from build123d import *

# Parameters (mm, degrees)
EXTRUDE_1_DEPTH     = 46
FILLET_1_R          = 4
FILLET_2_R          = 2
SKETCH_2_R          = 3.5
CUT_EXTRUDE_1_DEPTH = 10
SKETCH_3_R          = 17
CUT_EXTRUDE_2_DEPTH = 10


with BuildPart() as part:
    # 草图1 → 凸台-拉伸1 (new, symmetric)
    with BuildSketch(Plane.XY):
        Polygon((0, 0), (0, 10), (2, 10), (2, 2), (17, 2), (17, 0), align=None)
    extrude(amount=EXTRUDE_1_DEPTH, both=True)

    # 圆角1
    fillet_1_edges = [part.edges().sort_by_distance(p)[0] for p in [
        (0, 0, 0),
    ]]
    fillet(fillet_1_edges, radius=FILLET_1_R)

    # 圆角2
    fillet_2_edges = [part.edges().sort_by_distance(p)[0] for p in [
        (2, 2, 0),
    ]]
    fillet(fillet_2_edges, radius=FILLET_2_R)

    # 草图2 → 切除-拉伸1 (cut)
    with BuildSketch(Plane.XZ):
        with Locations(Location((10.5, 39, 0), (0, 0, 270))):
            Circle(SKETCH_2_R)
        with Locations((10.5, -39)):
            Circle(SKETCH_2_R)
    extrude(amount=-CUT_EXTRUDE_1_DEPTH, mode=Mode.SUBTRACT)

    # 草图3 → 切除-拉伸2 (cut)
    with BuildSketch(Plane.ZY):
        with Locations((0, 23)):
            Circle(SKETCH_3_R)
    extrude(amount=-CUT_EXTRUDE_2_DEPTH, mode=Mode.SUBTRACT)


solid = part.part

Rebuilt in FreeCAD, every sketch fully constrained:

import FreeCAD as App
import Part
import Sketcher


def edges_at(feature, points):
    """Names of the edges that pass closest to the given points."""
    edges = feature.Shape.Edges
    near = lambda p: min(range(len(edges)), key=lambda i: edges[i].distToShape(Part.Vertex(*p))[0])
    return sorted({f"Edge{near(p) + 1}" for p in points})

doc = App.newDocument("Part")
body = doc.addObject("PartDesign::Body", "Body")

# Sketch on XY plane
sketch1 = body.newObject("Sketcher::SketchObject", "Sketch")
sketch1.AttachmentSupport = (doc.getObject("XY_Plane"), [""])
sketch1.MapMode = "FlatFace"
sketch1.addGeometry(Part.LineSegment(App.Vector(0, 10, 0), App.Vector(0, 0, 0)), False)
sketch1.addGeometry(Part.LineSegment(App.Vector(0, 0, 0), App.Vector(17, 0, 0)), False)
sketch1.addGeometry(Part.LineSegment(App.Vector(17, 0, 0), App.Vector(17, 2, 0)), False)
sketch1.addGeometry(Part.LineSegment(App.Vector(17, 2, 0), App.Vector(2, 2, 0)), False)
sketch1.addGeometry(Part.LineSegment(App.Vector(2, 2, 0), App.Vector(2, 10, 0)), False)
sketch1.addGeometry(Part.LineSegment(App.Vector(2, 10, 0), App.Vector(0, 10, 0)), False)
sketch1.addConstraint(Sketcher.Constraint("Coincident", 0, 2, 1, 1))
sketch1.addConstraint(Sketcher.Constraint("Coincident", 1, 2, 2, 1))
sketch1.addConstraint(Sketcher.Constraint("Coincident", 2, 2, 3, 1))
sketch1.addConstraint(Sketcher.Constraint("Coincident", 3, 2, 4, 1))
sketch1.addConstraint(Sketcher.Constraint("Coincident", 4, 2, 5, 1))
sketch1.addConstraint(Sketcher.Constraint("Coincident", 5, 2, 0, 1))
sketch1.addConstraint(Sketcher.Constraint("Vertical", 0))
sketch1.addConstraint(Sketcher.Constraint("Horizontal", 1))
sketch1.addConstraint(Sketcher.Constraint("Vertical", 2))
sketch1.addConstraint(Sketcher.Constraint("Horizontal", 3))
sketch1.addConstraint(Sketcher.Constraint("Vertical", 4))
sketch1.addConstraint(Sketcher.Constraint("Horizontal", 5))
sketch1.addConstraint(Sketcher.Constraint("Coincident", 0, 2, -1, 1))
sketch1.addConstraint(Sketcher.Constraint("Equal", 5, 2))
sketch1.addConstraint(Sketcher.Constraint("DistanceX", 1, 1, 1, 2, 17.0))
sketch1.addConstraint(Sketcher.Constraint("DistanceX", 3, 2, 3, 1, 15.0))
sketch1.addConstraint(Sketcher.Constraint("DistanceY", 0, 2, 0, 1, 10.0))
pad1 = body.newObject("PartDesign::Pad", "Pad")
pad1.Profile = sketch1
pad1.Length = 92
pad1.Midplane = True
doc.recompute()

fillet = body.newObject("PartDesign::Fillet", "Fillet")
fillet.Base = (pad1, edges_at(pad1, [(0, 0, 0)]))
fillet.Radius = 4
doc.recompute()

fillet2 = body.newObject("PartDesign::Fillet", "Fillet001")
fillet2.Base = (fillet, edges_at(fillet, [(2, 2, 0)]))
fillet2.Radius = 2

# Sketch on XZ plane
sketch2 = body.newObject("Sketcher::SketchObject", "Sketch001")
sketch2.AttachmentSupport = (doc.getObject("XZ_Plane"), [""])
sketch2.MapMode = "FlatFace"
sketch2.addGeometry(Part.Circle(App.Vector(10.5, 39, 0), App.Vector(0, 0, 1), 3.5), False)
sketch2.addGeometry(Part.Circle(App.Vector(10.5, -39, 0), App.Vector(0, 0, 1), 3.5), False)
sketch2.addConstraint(Sketcher.Constraint("Equal", 0, 1))
sketch2.addConstraint(Sketcher.Constraint("Symmetric", 0, 3, 1, 3, -1))
sketch2.addConstraint(Sketcher.Constraint("Diameter", 0, 7.0))
sketch2.addConstraint(Sketcher.Constraint("DistanceY", -1, 1, 0, 3, 39.0))
sketch2.addConstraint(Sketcher.Constraint("DistanceX", -1, 1, 0, 3, 10.5))
pocket1 = body.newObject("PartDesign::Pocket", "Pocket")
pocket1.Profile = sketch2
pocket1.Length = 10

# Sketch on YZ plane
sketch3 = body.newObject("Sketcher::SketchObject", "Sketch002")
sketch3.AttachmentSupport = (doc.getObject("YZ_Plane"), [""])
sketch3.MapMode = "FlatFace"
sketch3.addGeometry(Part.Circle(App.Vector(23, 0, 0), App.Vector(0, 0, 1), 17), False)
sketch3.addConstraint(Sketcher.Constraint("PointOnObject", 0, 3, -1))
sketch3.addConstraint(Sketcher.Constraint("Diameter", 0, 34.0))
sketch3.addConstraint(Sketcher.Constraint("DistanceX", -1, 1, 0, 3, 23.0))
pocket2 = body.newObject("PartDesign::Pocket", "Pocket001")
pocket2.Profile = sketch3
pocket2.Length = 10
pocket2.Reversed = True

doc.recompute()
